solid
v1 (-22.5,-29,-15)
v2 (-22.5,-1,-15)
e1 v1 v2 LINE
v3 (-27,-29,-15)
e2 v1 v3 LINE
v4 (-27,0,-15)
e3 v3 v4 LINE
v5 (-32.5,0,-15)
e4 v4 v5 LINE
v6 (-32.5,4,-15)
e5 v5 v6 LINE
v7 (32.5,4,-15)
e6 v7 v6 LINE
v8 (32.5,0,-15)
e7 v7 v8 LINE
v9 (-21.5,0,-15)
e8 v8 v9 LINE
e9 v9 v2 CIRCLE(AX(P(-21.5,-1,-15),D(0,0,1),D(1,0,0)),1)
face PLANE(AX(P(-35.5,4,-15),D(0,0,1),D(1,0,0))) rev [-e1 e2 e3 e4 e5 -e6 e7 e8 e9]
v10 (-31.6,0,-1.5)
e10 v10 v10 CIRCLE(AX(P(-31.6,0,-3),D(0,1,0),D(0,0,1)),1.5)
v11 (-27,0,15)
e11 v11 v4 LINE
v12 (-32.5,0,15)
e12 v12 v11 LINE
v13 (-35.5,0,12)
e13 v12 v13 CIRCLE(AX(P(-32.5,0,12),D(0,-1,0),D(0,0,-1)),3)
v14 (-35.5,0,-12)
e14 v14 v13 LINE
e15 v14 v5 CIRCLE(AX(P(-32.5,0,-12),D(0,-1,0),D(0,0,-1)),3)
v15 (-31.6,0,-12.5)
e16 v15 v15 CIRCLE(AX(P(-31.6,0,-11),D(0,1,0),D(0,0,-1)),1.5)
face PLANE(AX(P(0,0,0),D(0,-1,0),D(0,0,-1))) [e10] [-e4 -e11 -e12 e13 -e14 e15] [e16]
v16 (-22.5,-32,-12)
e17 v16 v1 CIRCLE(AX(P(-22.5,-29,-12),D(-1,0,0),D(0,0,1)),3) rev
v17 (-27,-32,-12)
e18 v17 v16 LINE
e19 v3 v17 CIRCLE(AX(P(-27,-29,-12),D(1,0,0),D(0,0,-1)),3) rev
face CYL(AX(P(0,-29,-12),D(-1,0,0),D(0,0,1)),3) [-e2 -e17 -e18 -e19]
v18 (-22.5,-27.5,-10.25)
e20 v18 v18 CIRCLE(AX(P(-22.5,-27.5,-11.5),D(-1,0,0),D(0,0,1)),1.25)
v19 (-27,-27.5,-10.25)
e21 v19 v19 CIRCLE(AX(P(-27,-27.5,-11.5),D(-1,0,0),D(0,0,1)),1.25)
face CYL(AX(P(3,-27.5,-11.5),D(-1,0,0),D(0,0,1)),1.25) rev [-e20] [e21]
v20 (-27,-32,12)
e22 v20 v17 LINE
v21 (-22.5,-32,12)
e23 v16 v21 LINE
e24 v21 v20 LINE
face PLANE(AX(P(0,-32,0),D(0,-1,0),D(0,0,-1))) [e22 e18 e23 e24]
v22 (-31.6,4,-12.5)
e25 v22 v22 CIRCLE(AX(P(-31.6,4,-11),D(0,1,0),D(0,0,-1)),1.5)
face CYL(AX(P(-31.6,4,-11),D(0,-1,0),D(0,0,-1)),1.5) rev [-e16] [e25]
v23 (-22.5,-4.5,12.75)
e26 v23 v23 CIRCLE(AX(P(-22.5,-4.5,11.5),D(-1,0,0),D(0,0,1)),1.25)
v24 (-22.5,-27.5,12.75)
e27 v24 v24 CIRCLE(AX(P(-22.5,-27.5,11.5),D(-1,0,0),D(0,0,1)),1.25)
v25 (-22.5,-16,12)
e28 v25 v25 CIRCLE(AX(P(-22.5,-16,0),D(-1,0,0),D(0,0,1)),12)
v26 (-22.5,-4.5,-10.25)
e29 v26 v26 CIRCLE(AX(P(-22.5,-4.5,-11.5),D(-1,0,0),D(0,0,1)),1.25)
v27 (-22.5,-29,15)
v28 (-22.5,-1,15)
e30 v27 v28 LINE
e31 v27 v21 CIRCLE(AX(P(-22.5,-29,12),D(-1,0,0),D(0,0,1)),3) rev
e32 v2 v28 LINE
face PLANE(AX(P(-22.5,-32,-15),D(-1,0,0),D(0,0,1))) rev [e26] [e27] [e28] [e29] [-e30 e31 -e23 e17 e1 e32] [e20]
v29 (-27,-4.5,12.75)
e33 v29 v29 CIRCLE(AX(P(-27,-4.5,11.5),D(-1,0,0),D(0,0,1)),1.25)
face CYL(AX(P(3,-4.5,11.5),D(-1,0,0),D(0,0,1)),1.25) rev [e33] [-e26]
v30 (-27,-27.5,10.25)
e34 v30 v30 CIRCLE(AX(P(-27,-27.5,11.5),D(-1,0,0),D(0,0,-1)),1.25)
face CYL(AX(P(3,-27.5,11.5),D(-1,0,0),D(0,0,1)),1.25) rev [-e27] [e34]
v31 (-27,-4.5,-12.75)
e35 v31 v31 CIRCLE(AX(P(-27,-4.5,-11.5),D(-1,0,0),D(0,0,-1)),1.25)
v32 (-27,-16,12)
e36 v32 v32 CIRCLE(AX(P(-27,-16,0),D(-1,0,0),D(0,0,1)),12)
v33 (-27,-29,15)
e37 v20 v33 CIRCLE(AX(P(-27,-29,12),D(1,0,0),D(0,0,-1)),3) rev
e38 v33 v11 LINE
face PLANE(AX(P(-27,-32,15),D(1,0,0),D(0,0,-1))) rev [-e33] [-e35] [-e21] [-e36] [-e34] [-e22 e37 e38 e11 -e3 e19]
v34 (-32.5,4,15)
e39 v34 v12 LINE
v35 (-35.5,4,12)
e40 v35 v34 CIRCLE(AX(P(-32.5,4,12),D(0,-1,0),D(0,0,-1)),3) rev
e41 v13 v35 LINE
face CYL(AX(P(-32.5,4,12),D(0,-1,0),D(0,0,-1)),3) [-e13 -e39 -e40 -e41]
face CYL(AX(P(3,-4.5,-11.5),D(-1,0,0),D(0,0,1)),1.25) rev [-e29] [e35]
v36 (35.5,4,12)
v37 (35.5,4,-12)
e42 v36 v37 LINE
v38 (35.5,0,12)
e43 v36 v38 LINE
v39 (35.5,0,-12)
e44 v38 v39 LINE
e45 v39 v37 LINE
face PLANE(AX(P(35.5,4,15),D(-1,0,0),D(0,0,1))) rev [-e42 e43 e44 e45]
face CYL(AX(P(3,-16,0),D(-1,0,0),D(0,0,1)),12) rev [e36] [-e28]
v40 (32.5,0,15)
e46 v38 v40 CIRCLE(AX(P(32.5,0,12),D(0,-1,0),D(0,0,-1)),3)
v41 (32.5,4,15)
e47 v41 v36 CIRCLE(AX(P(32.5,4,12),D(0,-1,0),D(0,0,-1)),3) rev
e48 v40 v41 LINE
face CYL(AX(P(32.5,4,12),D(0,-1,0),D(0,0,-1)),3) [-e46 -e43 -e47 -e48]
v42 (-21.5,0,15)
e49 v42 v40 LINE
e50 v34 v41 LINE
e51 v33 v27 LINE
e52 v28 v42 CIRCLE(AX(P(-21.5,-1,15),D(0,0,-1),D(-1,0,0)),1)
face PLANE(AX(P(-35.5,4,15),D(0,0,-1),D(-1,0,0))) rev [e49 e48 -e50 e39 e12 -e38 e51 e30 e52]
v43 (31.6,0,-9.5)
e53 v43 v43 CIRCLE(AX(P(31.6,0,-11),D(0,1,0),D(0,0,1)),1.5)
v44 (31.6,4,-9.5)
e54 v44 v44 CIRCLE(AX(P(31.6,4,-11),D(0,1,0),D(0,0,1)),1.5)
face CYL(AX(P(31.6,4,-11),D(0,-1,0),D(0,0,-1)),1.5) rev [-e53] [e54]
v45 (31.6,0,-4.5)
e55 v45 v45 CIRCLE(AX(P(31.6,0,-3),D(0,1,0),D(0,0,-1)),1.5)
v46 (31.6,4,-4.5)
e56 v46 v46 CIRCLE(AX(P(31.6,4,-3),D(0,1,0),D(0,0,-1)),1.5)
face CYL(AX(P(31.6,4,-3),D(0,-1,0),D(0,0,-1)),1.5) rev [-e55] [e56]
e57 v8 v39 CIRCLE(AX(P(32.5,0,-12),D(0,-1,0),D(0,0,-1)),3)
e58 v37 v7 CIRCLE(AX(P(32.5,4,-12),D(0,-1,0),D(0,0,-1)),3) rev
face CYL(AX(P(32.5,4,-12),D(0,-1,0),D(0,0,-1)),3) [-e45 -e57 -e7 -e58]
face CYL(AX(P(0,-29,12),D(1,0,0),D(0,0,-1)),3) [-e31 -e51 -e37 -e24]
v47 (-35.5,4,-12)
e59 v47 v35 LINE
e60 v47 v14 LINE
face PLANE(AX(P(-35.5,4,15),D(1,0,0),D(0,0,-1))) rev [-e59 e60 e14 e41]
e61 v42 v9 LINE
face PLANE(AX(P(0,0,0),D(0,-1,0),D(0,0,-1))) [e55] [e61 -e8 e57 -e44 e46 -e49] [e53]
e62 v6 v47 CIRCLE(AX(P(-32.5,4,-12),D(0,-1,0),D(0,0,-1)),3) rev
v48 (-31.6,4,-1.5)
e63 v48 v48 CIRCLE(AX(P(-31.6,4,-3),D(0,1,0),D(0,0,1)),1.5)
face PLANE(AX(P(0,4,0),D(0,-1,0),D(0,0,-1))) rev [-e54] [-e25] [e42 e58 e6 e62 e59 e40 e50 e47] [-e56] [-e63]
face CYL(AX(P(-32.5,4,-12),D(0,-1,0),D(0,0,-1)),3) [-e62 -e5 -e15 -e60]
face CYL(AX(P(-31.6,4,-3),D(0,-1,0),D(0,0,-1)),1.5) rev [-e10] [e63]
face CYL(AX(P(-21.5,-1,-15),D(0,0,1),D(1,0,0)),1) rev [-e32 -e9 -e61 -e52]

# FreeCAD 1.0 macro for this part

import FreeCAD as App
import Part
import Sketcher
from FreeCAD import Vector


def edges_at(feature, points):
    """Names of the edges that pass closest to the given points."""
    edges = feature.Shape.Edges
    near = lambda p: min(range(len(edges)), key=lambda i: edges[i].distToShape(Part.Vertex(*p))[0])
    return sorted({f"Edge{near(p) + 1}" for p in points})


def add_polygon(sketch, points):
    """Adds a closed chain of lines whose ends are joined by coincident constraints."""
    first, n = sketch.GeometryCount, len(points)
    for a, b in zip(points, points[1:] + points[:1]):
        sketch.addGeometry(Part.LineSegment(App.Vector(*a, 0), App.Vector(*b, 0)), False)
    for i in range(n):
        sketch.addConstraint(Sketcher.Constraint("Coincident", first + i, 2, first + (i + 1) % n, 1))

doc = App.newDocument("Part")
body = doc.addObject("PartDesign::Body", "Body")

sketch1 = body.newObject("Sketcher::SketchObject", "Sketch")
sketch1.AttachmentSupport = (doc.getObject("XZ_Plane"), [""])
sketch1.MapMode = "FlatFace"
add_polygon(sketch1, [(-35.5, -15), (-35.5, 15), (35.5, 15), (35.5, -15)])
sketch1.addGeometry(Part.Circle(Vector(-31.6, -3, 0), Vector(0, 0, 1), 1.5), False)
sketch1.addGeometry(Part.Circle(Vector(31.6, -3, 0), Vector(0, 0, 1), 1.5), False)
sketch1.addGeometry(Part.Circle(Vector(-31.6, -11, 0), Vector(0, 0, 1), 1.5), False)
sketch1.addGeometry(Part.Circle(Vector(31.6, -11, 0), Vector(0, 0, 1), 1.5), False)
sketch1.addConstraint([
    Sketcher.Constraint("Vertical", 0),
    Sketcher.Constraint("Horizontal", 1),
    Sketcher.Constraint("Vertical", 2),
    Sketcher.Constraint("Horizontal", 3),
    Sketcher.Constraint("Equal", 4, 5),
    Sketcher.Constraint("Equal", 5, 6),
    Sketcher.Constraint("Equal", 6, 7),
    Sketcher.Constraint("Symmetric", 0, 2, 2, 2, -1, 1),
    Sketcher.Constraint("Symmetric", 4, 3, 5, 3, -2),
    Sketcher.Constraint("Symmetric", 6, 3, 7, 3, -2),
    Sketcher.Constraint("Vertical", 4, 3, 6, 3),
    Sketcher.Constraint("Diameter", 4, 3.0),
    Sketcher.Constraint("DistanceX", 1, 1, 1, 2, 71.0),
    Sketcher.Constraint("DistanceY", 0, 1, 0, 2, 30.0),
    Sketcher.Constraint("DistanceY", 4, 3, -1, 1, 3.0),
    Sketcher.Constraint("DistanceY", 6, 3, -1, 1, 11.0),
    Sketcher.Constraint("DistanceX", 4, 3, -1, 1, 31.6),
])
pad1 = body.newObject("PartDesign::Pad", "Pad")
pad1.Profile = sketch1
pad1.Length = 4
pad1.Reversed = True
doc.recompute()

fillet = body.newObject("PartDesign::Fillet", "Fillet")
fillet.Base = (pad1, edges_at(pad1, [
    (35.5, 2, 15),
    (-35.5, 2, 15),
    (-35.5, 2, -15),
    (35.5, 2, -15),
]))
fillet.Radius = 3

sketch2 = body.newObject("Sketcher::SketchObject", "Sketch001")
sketch2.AttachmentSupport = (doc.getObject("XZ_Plane"), [""])
sketch2.MapMode = "FlatFace"
add_polygon(sketch2, [(-27, 15), (-27, -15), (-22.5, -15), (-22.5, 15)])
sketch2.addConstraint([
    Sketcher.Constraint("Vertical", 0),
    Sketcher.Constraint("Horizontal", 1),
    Sketcher.Constraint("Vertical", 2),
    Sketcher.Constraint("Horizontal", 3),
    Sketcher.Constraint("DistanceY", 0, 2, 0, 1, 30.0),
    Sketcher.Constraint("DistanceX", 1, 1, 1, 2, 4.5),
    Sketcher.Constraint("DistanceX", 0, 2, -1, 1, 27.0),
    Sketcher.Constraint("DistanceY", 0, 2, -1, 1, 15.0),
])
pad2 = body.newObject("PartDesign::Pad", "Pad001")
pad2.Profile = sketch2
pad2.Length = 32

sketch3 = body.newObject("Sketcher::SketchObject", "Sketch002")
sketch3.AttachmentSupport = (doc.getObject("YZ_Plane"), [""])
sketch3.MapMode = "FlatFace"
sketch3.AttachmentOffset = App.Placement(Vector(0, 0, -27), App.Rotation())
sketch3.addGeometry([
    Part.Circle(Vector(-4.5, 11.5, 0), Vector(0, 0, 1), 1.2),
    Part.Circle(Vector(-27.5, 11.5, 0), Vector(0, 0, 1), 1.2),
    Part.Circle(Vector(-27.5, -11.5, 0), Vector(0, 0, 1), 1.2),
    Part.Circle(Vector(-4.5, -11.5, 0), Vector(0, 0, 1), 1.2),
    Part.Circle(Vector(-16, 0, 0), Vector(0, 0, 1), 12),
], False)
sketch3.addConstraint([
    Sketcher.Constraint("Equal", 0, 1),
    Sketcher.Constraint("Equal", 1, 2),
    Sketcher.Constraint("Equal", 2, 3),
    Sketcher.Constraint("Symmetric", 1, 3, 2, 3, -1),
    Sketcher.Constraint("Symmetric", 0, 3, 3, 3, -1),
    Sketcher.Constraint("PointOnObject", 4, 3, -1),
    Sketcher.Constraint("Horizontal", 0, 3, 1, 3),
    Sketcher.Constraint("Diameter", 4, 24.0),
    Sketcher.Constraint("Diameter", 0, 2.5),
    Sketcher.Constraint("DistanceX", 4, 3, -1, 1, 16.0),
    Sketcher.Constraint("DistanceX", 1, 3, 0, 3, 23.0),
    Sketcher.Constraint("DistanceY", 2, 3, 1, 3, 23.0),
    Sketcher.Constraint("DistanceX", 0, 3, -1, 1, 4.5),
])
pocket1 = body.newObject("PartDesign::Pocket", "Pocket")
pocket1.Profile = sketch3
pocket1.Length = 30
pocket1.Reversed = True
doc.recompute()

fillet2 = body.newObject("PartDesign::Fillet", "Fillet001")
fillet2.Base = (pocket1, edges_at(pocket1, [(-24.75, -32, -15), (-24.75, -32, 15)]))
fillet2.Radius = 3
doc.recompute()

fillet3 = body.newObject("PartDesign::Fillet", "Fillet002")
fillet3.Base = (fillet2, edges_at(fillet2, [(-22.5, 0, 0)]))
fillet3.Radius = 1

doc.recompute()
